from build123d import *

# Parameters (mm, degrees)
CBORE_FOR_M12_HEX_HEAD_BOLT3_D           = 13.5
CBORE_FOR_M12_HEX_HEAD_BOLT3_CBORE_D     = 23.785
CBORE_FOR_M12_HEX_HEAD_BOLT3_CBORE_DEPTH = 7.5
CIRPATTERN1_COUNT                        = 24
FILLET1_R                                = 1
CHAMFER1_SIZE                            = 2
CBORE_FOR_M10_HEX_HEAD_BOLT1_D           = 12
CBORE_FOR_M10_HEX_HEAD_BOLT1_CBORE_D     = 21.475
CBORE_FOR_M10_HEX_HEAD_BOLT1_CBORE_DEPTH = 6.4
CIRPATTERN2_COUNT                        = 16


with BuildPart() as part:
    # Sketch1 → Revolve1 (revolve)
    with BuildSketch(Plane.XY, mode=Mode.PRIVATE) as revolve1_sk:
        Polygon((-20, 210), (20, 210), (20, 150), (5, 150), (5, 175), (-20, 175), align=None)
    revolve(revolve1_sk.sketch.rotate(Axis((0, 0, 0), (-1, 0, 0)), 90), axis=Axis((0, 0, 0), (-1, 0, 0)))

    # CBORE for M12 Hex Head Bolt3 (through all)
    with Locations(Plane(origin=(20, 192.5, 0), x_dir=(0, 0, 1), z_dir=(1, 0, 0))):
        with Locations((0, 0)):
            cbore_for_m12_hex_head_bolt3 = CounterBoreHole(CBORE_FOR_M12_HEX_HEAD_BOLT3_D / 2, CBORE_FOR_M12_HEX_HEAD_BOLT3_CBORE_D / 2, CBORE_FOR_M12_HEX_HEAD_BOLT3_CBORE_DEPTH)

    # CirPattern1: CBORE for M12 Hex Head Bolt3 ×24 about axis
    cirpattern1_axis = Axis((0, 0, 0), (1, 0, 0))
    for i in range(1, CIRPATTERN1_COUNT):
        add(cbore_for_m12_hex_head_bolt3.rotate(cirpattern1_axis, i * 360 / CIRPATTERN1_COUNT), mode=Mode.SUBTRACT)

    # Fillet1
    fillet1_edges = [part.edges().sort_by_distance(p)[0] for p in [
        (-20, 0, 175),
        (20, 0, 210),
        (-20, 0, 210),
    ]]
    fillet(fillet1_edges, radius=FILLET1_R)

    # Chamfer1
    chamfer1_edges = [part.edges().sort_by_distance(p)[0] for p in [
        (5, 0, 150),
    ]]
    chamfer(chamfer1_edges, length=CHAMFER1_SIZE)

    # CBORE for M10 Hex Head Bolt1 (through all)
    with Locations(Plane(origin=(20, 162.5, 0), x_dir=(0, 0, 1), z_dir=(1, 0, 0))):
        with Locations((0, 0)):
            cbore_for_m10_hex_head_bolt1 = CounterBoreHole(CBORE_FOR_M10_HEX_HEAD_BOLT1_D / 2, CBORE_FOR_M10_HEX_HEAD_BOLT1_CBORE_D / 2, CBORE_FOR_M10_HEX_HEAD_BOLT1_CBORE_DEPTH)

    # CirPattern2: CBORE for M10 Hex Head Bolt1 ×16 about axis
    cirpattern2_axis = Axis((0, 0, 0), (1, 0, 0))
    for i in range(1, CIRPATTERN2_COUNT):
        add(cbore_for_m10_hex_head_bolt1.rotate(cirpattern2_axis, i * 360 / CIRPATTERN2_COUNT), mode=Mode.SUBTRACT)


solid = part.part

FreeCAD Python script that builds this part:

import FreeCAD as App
import Part
import Sketcher
Q = App.Units.Quantity


def edges_at(feature, points):
    """Names of the edges that pass closest to the given points."""
    edges = feature.Shape.Edges
    near = lambda p: min(range(len(edges)), key=lambda i: edges[i].distToShape(Part.Vertex(*p))[0])
    return sorted({f"Edge{near(p) + 1}" for p in points})

doc = App.newDocument("Part")
params = doc.addObject("Spreadsheet::Sheet", "Params")
for row, (alias, value) in enumerate([
    ("sketch1_width", "40 mm"),
    ("sketch1_width2", "25 mm"),
    ("sketch1_height", "35 mm"),
    ("revolution_angle", "360 deg"),
    ("sketch2_diameter", "13.5 mm"),
    ("hole_diameter", "13.5 mm"),
    ("hole_cbore_diameter", "23.785 mm"),
    ("hole_cbore_depth", "7.5 mm"),
    ("fillet_radius", "1 mm"),
    ("chamfer_size", "2 mm"),
    ("sketch3_diameter", "12 mm"),
    ("hole2_diameter", "12 mm"),
    ("hole2_cbore_diameter", "21.475 mm"),
    ("hole2_cbore_depth", "6.4 mm"),
], start=1):
    params.set(f"A{row}", alias)
    params.set(f"B{row}", "=" + value)
    params.setAlias(f"B{row}", alias)

body = doc.addObject("PartDesign::Body", "Body")

sketch1 = doc.addObject("Sketcher::SketchObject", "Sketch")
body.addObject(sketch1)
sketch1.AttachmentSupport = (doc.XY_Plane, [""])
sketch1.MapMode = "FlatFace"
sketch1.addGeometry([
    Part.LineSegment(App.Vector(20, 210, 0), App.Vector(-20, 210, 0)),
    Part.LineSegment(App.Vector(-20, 210, 0), App.Vector(-20, 175, 0)),
    Part.LineSegment(App.Vector(-20, 175, 0), App.Vector(5, 175, 0)),
    Part.LineSegment(App.Vector(5, 175, 0), App.Vector(5, 150, 0)),
    Part.LineSegment(App.Vector(5, 150, 0), App.Vector(20, 150, 0)),
    Part.LineSegment(App.Vector(20, 150, 0), App.Vector(20, 210, 0)),
], False)
sketch1.addConstraint([
    Sketcher.Constraint("Coincident", 0, 2, 1, 1),
    Sketcher.Constraint("Coincident", 1, 2, 2, 1),
    Sketcher.Constraint("Coincident", 2, 2, 3, 1),
    Sketcher.Constraint("Coincident", 3, 2, 4, 1),
    Sketcher.Constraint("Coincident", 4, 2, 5, 1),
    Sketcher.Constraint("Coincident", 5, 2, 0, 1),
    Sketcher.Constraint("Horizontal", 0),
    Sketcher.Constraint("Vertical", 1),
    Sketcher.Constraint("Horizontal", 2),
    Sketcher.Constraint("Vertical", 3),
    Sketcher.Constraint("Horizontal", 4),
    Sketcher.Constraint("Vertical", 5),
    Sketcher.Constraint("Equal", 2, 3),
    Sketcher.Constraint("DistanceX", 0, 2, 0, 1, Q("40 mm")),
    Sketcher.Constraint("DistanceX", 2, 1, 2, 2, Q("25 mm")),
    Sketcher.Constraint("DistanceY", 1, 2, 1, 1, Q("35 mm")),
    Sketcher.Constraint("DistanceX", 0, 2, -1, 1, Q("20 mm")),
    Sketcher.Constraint("DistanceY", -1, 1, 0, 2, Q("210 mm")),
])
sketch1.setExpression("Constraints[13]", "Params.sketch1_width")
sketch1.setExpression("Constraints[14]", "Params.sketch1_width2")
sketch1.setExpression("Constraints[15]", "Params.sketch1_height")
revolution = doc.addObject("PartDesign::Revolution", "Revolution")
body.addObject(revolution)
revolution.Profile = sketch1
revolution.ReferenceAxis = (sketch1, ["H_Axis"])
revolution.setExpression("Angle", "Params.revolution_angle")

sketch2 = doc.addObject("Sketcher::SketchObject", "Sketch001")
body.addObject(sketch2)
sketch2.AttachmentSupport = (doc.YZ_Plane, [""])
sketch2.MapMode = "FlatFace"
sketch2.AttachmentOffset = App.Placement(App.Vector(0, 0, 20), App.Rotation())
sketch2.addGeometry(Part.Circle(App.Vector(192, 0, 0), App.Vector(0, 0, 1), 7), False)
sketch2.addConstraint([
    Sketcher.Constraint("PointOnObject", 0, 3, -1),
    Sketcher.Constraint("Diameter", 0, Q("13.5 mm")),
    Sketcher.Constraint("DistanceX", -1, 1, 0, 3, Q("192.5 mm")),
])
sketch2.setExpression("Constraints[1]", "Params.sketch2_diameter")
doc.recompute()
hole = doc.addObject("PartDesign::Hole", "Hole")
body.addObject(hole)
hole.Profile = sketch2
hole.ThreadType = "None"
hole.setExpression("Diameter", "Params.hole_diameter")
hole.DepthType = "ThroughAll"
hole.HoleCutType = "Counterbore"
hole.setExpression("HoleCutDiameter", "Params.hole_cbore_diameter")
hole.setExpression("HoleCutDepth", "Params.hole_cbore_depth")
doc.recompute()

polarpattern = doc.addObject("PartDesign::PolarPattern", "PolarPattern")
body.addObject(polarpattern)
polarpattern.Originals = [hole]
polarpattern.Axis = (doc.X_Axis, [""])
polarpattern.Angle = 360
polarpattern.Occurrences = 24
body.Tip = polarpattern
doc.recompute()

fillet = doc.addObject("PartDesign::Fillet", "Fillet")
body.addObject(fillet)
fillet.Base = (polarpattern, edges_at(polarpattern, [(-20, 0, 175), (20, 0, 210), (-20, 0, 210)]))
fillet.setExpression("Radius", "Params.fillet_radius")
doc.recompute()

chamfer = doc.addObject("PartDesign::Chamfer", "Chamfer")
body.addObject(chamfer)
chamfer.Base = (fillet, edges_at(fillet, [(5, 0, 150)]))
chamfer.setExpression("Size", "Params.chamfer_size")

sketch3 = doc.addObject("Sketcher::SketchObject", "Sketch002")
body.addObject(sketch3)
sketch3.AttachmentSupport = (doc.YZ_Plane, [""])
sketch3.MapMode = "FlatFace"
sketch3.AttachmentOffset = App.Placement(App.Vector(0, 0, 20), App.Rotation())
sketch3.addGeometry(Part.Circle(App.Vector(162, 0, 0), App.Vector(0, 0, 1), 6), False)
sketch3.addConstraint([
    Sketcher.Constraint("PointOnObject", 0, 3, -1),
    Sketcher.Constraint("Diameter", 0, Q("12 mm")),
    Sketcher.Constraint("DistanceX", -1, 1, 0, 3, Q("162.5 mm")),
])
sketch3.setExpression("Constraints[1]", "Params.sketch3_diameter")
doc.recompute()
hole2 = doc.addObject("PartDesign::Hole", "Hole001")
body.addObject(hole2)
hole2.Profile = sketch3
hole2.ThreadType = "None"
hole2.setExpression("Diameter", "Params.hole2_diameter")
hole2.DepthType = "ThroughAll"
hole2.HoleCutType = "Counterbore"
hole2.setExpression("HoleCutDiameter", "Params.hole2_cbore_diameter")
hole2.setExpression("HoleCutDepth", "Params.hole2_cbore_depth")
doc.recompute()

polarpattern2 = doc.addObject("PartDesign::PolarPattern", "PolarPattern001")
body.addObject(polarpattern2)
polarpattern2.Originals = [hole2]
polarpattern2.Axis = (doc.X_Axis, [""])
polarpattern2.Angle = 360
polarpattern2.Occurrences = 16
body.Tip = polarpattern2

doc.recompute()
